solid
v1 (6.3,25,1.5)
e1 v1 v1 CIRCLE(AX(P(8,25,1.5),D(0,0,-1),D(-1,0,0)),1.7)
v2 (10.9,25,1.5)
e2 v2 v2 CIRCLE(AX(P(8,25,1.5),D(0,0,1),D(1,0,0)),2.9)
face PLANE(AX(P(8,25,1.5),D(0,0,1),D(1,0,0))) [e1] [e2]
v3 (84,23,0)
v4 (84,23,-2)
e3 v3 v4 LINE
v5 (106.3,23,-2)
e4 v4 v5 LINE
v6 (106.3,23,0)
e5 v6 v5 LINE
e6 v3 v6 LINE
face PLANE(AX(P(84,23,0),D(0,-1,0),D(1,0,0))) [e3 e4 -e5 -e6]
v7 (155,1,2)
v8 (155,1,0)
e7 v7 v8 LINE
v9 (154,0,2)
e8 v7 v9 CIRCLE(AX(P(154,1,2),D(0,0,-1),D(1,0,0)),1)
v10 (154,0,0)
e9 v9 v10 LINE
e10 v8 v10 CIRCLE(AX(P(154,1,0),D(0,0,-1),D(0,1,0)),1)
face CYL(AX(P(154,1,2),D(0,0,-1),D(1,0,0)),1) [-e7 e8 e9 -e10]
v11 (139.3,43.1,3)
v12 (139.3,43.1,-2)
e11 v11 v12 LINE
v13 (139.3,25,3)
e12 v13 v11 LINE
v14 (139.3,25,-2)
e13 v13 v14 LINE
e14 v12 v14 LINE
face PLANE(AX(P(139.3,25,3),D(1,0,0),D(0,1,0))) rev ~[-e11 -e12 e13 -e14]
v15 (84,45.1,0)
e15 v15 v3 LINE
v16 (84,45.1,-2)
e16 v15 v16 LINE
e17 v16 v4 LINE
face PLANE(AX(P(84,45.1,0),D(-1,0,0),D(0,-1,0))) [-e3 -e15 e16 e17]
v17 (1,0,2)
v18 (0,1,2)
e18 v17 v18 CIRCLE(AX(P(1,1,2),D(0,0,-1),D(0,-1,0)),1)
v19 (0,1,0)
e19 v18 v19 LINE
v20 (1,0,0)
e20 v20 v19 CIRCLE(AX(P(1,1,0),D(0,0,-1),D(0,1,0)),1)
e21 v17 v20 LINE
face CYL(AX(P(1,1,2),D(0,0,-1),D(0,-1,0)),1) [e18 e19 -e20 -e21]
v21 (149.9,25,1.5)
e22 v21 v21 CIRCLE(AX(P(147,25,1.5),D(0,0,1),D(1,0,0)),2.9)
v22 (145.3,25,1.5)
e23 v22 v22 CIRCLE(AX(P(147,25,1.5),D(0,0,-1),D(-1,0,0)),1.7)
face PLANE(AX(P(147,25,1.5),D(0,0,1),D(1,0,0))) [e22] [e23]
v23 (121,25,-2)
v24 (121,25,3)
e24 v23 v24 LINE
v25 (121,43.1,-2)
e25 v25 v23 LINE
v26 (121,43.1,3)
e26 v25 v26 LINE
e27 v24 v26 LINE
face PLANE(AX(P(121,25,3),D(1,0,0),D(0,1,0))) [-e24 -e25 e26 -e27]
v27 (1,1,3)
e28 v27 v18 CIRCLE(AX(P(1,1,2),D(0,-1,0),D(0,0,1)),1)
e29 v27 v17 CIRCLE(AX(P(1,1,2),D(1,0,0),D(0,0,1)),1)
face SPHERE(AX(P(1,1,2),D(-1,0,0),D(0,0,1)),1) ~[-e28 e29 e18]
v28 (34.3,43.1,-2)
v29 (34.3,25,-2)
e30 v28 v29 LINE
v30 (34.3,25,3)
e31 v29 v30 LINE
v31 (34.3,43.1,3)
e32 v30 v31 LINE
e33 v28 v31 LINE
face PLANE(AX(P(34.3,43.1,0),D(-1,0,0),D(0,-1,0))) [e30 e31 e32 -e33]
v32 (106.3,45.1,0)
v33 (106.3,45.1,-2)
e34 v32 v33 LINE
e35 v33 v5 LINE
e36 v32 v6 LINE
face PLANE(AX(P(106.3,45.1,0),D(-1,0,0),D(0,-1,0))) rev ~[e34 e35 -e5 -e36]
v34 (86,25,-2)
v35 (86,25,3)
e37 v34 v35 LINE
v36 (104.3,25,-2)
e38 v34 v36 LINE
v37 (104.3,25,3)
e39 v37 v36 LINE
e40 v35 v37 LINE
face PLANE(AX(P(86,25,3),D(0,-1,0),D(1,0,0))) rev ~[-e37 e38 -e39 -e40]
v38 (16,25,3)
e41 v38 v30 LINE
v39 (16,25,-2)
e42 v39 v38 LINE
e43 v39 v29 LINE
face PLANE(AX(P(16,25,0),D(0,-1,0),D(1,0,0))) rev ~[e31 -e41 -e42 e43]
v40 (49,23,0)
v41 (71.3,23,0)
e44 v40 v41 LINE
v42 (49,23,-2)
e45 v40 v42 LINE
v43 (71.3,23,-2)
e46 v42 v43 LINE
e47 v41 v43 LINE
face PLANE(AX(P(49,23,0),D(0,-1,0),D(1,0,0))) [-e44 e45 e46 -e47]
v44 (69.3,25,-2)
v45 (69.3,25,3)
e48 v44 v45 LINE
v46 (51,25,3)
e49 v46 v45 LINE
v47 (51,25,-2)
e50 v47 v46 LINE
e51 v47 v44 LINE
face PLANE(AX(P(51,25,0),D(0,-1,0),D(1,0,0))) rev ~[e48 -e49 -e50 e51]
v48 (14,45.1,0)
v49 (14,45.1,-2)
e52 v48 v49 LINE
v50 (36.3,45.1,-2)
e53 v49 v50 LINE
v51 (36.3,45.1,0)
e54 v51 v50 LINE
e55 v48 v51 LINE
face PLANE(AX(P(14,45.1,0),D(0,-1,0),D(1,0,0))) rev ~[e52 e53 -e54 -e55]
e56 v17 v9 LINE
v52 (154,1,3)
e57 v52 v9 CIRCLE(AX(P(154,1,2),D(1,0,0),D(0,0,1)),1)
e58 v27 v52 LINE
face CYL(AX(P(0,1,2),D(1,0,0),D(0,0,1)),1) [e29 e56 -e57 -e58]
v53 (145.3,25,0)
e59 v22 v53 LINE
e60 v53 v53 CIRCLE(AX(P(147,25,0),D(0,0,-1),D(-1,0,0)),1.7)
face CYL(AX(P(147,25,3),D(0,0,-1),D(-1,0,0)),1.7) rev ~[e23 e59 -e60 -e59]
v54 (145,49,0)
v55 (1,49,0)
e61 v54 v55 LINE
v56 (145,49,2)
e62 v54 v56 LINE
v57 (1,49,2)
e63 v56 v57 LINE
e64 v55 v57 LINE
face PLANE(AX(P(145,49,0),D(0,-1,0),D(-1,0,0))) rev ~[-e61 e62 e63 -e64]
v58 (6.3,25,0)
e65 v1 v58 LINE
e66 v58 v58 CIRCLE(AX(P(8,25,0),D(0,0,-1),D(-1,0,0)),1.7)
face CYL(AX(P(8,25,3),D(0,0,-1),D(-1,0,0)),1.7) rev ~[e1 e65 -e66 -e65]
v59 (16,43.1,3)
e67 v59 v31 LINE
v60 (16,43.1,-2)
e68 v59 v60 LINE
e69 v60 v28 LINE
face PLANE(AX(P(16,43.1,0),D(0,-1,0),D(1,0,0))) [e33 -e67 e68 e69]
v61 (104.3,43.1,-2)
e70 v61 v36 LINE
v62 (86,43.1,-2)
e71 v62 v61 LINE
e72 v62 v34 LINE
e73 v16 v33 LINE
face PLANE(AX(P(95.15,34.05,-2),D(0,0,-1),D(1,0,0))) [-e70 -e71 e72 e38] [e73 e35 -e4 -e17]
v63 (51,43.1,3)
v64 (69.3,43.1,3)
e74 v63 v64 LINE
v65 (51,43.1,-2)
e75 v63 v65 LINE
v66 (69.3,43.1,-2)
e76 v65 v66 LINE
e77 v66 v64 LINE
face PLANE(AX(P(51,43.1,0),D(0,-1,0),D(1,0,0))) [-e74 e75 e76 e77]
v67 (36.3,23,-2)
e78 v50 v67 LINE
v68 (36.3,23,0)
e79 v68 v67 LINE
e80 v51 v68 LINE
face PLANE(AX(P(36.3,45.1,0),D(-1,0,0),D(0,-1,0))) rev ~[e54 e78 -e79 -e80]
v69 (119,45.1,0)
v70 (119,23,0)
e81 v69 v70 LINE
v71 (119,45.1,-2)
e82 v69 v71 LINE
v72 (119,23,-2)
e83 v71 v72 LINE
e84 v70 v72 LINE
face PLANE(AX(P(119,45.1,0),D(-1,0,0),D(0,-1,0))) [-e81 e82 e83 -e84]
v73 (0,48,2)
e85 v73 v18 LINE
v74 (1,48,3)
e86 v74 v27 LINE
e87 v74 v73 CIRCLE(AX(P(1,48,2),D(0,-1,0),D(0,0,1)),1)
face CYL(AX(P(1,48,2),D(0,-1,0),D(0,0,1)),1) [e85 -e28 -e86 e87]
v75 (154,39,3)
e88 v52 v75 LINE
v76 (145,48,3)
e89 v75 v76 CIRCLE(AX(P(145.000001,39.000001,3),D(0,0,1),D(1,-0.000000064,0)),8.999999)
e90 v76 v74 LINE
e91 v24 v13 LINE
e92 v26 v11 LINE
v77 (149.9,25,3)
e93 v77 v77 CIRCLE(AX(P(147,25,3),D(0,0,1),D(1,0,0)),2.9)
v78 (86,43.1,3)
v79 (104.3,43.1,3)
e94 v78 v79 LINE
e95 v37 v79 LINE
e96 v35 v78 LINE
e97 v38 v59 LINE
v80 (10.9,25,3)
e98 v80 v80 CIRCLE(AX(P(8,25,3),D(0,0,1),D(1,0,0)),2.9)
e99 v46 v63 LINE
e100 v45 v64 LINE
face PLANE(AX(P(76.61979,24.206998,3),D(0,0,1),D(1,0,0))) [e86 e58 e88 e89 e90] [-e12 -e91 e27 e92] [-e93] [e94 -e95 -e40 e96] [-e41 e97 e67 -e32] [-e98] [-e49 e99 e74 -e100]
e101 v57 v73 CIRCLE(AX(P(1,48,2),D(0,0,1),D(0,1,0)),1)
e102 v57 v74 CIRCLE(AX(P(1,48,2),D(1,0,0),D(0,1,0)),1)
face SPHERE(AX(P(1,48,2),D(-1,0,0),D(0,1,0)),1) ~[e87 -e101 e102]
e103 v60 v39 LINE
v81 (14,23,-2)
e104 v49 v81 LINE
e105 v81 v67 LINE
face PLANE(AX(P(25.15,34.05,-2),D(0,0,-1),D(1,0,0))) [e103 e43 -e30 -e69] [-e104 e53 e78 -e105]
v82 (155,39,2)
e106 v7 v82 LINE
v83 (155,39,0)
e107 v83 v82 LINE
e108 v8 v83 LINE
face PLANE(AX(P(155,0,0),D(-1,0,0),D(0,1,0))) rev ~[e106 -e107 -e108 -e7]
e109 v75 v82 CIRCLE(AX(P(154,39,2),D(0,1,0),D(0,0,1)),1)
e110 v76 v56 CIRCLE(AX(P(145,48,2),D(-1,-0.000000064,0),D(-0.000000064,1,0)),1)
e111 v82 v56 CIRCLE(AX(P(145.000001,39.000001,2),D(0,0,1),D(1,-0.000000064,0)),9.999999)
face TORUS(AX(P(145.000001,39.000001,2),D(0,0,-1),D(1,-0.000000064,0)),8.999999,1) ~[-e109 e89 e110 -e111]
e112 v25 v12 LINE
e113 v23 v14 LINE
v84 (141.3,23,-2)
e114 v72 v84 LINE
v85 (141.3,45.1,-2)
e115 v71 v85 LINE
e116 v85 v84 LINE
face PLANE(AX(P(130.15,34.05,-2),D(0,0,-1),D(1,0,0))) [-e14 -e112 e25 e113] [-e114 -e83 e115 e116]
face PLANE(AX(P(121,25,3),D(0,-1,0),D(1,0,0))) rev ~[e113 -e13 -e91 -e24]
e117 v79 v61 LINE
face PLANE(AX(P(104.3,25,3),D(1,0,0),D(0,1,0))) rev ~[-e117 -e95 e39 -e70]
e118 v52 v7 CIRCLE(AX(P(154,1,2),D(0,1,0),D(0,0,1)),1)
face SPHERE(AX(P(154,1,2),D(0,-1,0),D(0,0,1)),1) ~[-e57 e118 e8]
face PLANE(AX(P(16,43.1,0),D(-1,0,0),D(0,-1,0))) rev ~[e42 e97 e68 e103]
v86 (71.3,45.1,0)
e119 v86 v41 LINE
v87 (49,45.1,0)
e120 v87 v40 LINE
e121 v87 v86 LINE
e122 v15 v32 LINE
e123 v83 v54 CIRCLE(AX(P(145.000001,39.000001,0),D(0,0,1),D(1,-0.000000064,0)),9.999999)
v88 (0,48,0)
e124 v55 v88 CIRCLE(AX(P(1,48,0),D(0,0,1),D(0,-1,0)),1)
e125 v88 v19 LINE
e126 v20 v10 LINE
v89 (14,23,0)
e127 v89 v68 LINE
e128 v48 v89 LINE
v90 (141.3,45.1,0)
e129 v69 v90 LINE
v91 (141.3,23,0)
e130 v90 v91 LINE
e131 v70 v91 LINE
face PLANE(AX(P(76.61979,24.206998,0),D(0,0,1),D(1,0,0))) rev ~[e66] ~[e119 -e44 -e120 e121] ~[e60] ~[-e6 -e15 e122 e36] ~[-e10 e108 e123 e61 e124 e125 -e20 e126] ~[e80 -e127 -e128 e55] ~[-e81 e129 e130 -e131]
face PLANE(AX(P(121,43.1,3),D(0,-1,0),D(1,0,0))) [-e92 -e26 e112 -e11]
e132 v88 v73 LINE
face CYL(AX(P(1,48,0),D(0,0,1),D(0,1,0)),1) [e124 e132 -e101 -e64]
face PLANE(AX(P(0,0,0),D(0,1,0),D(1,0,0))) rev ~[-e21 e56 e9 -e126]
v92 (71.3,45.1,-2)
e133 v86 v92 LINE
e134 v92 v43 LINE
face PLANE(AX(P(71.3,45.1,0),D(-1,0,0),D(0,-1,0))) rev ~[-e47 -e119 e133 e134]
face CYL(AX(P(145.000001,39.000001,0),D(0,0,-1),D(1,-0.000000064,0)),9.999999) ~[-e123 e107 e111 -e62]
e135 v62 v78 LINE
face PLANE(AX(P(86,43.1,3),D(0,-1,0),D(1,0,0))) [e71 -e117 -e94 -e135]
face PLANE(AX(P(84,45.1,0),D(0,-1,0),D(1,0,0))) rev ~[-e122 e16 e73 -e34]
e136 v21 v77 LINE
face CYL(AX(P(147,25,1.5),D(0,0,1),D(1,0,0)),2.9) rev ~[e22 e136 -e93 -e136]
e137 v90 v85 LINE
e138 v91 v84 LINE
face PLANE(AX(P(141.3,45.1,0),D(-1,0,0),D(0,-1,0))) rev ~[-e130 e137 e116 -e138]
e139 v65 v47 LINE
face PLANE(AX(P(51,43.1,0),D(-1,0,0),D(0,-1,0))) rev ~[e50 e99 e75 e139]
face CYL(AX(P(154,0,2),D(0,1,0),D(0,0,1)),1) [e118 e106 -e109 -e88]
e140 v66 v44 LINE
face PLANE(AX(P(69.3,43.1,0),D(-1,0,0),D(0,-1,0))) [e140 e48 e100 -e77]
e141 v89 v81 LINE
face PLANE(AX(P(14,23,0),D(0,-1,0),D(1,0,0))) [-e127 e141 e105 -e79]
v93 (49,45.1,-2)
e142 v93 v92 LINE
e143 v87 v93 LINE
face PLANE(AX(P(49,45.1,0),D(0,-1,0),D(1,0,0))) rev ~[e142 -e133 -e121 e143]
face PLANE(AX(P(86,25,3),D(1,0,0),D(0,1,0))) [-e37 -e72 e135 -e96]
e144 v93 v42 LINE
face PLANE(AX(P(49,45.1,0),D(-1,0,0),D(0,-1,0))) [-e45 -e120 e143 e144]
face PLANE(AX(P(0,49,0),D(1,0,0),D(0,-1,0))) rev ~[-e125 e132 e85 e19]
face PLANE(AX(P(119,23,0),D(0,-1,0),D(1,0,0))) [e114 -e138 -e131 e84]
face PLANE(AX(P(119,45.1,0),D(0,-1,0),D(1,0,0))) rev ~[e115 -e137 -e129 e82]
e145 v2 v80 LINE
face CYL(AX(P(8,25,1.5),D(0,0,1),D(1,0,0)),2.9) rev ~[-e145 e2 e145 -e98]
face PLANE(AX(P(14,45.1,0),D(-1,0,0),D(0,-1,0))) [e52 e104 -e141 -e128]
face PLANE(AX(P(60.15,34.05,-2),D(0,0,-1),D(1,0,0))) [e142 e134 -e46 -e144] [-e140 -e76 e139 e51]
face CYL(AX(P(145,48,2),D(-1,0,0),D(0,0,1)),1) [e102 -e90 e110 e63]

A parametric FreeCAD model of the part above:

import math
import FreeCAD as App
import Part
import Sketcher
from FreeCAD import Vector


def edges_at(feature, points):
    """Names of the edges that pass closest to the given points."""
    edges = feature.Shape.Edges
    near = lambda p: min(range(len(edges)), key=lambda i: edges[i].distToShape(Part.Vertex(*p))[0])
    return sorted({f"Edge{near(p) + 1}" for p in points})


def add_polygon(sketch, points):
    """Adds a closed chain of lines whose ends are joined by coincident constraints."""
    first, n = sketch.GeometryCount, len(points)
    for a, b in zip(points, points[1:] + points[:1]):
        sketch.addGeometry(Part.LineSegment(App.Vector(*a, 0), App.Vector(*b, 0)), False)
    for i in range(n):
        sketch.addConstraint(Sketcher.Constraint("Coincident", first + i, 2, first + (i + 1) % n, 1))

doc = App.newDocument("Part")
body = doc.addObject("PartDesign::Body", "Body")

sketch1 = body.newObject("Sketcher::SketchObject", "Sketch")
sketch1.AttachmentSupport = (doc.getObject("XY_Plane"), [""])
sketch1.MapMode = "FlatFace"
sketch1.addGeometry(Part.LineSegment(Vector(145, 49, 0), Vector(0, 49, 0)), False)
sketch1.addGeometry(Part.LineSegment(Vector(0, 49, 0), Vector(0, 0, 0)), False)
sketch1.addGeometry(Part.LineSegment(Vector(0, 0, 0), Vector(155, 0, 0)), False)
sketch1.addGeometry(Part.LineSegment(Vector(155, 0, 0), Vector(155, 39, 0)), False)
sketch1.addGeometry(Part.ArcOfCircle(Part.Circle(Vector(145, 39, 0), Vector(0, 0, 1), 10), math.radians(0), math.radians(90)), False)
sketch1.addConstraint(Sketcher.Constraint("Coincident", 0, 2, 1, 1))
sketch1.addConstraint(Sketcher.Constraint("Coincident", 1, 2, 2, 1))
sketch1.addConstraint(Sketcher.Constraint("Coincident", 2, 2, 3, 1))
sketch1.addConstraint(Sketcher.Constraint("Tangent", 3, 2, 4, 1))
sketch1.addConstraint(Sketcher.Constraint("Tangent", 4, 2, 0, 1))
sketch1.addConstraint(Sketcher.Constraint("Horizontal", 0))
sketch1.addConstraint(Sketcher.Constraint("Vertical", 1))
sketch1.addConstraint(Sketcher.Constraint("Horizontal", 2))
sketch1.addConstraint(Sketcher.Constraint("Vertical", 3))
sketch1.addConstraint(Sketcher.Constraint("Coincident", 1, 2, -1, 1))
sketch1.addConstraint(Sketcher.Constraint("Radius", 4, 9.999999))
sketch1.addConstraint(Sketcher.Constraint("DistanceX", 0, 2, 0, 1, 145.0))
sketch1.addConstraint(Sketcher.Constraint("DistanceY", 1, 2, 1, 1, 49.0))
pad1 = body.newObject("PartDesign::Pad", "Pad")
pad1.Profile = sketch1
pad1.Length = 3

sketch2 = body.newObject("Sketcher::SketchObject", "Sketch001")
sketch2.AttachmentSupport = (doc.getObject("XY_Plane"), [""])
sketch2.MapMode = "FlatFace"
sketch2.AttachmentOffset = App.Placement(Vector(0, 0, 3), App.Rotation())
add_polygon(sketch2, [(16, 43), (16, 25), (34, 25), (34, 43)])
sketch2.addConstraint(Sketcher.Constraint("Vertical", 0))
sketch2.addConstraint(Sketcher.Constraint("Horizontal", 1))
sketch2.addConstraint(Sketcher.Constraint("Vertical", 2))
sketch2.addConstraint(Sketcher.Constraint("Horizontal", 3))
sketch2.addConstraint(Sketcher.Constraint("DistanceX", 1, 1, 1, 2, 18.3))
sketch2.addConstraint(Sketcher.Constraint("DistanceY", 0, 2, 0, 1, 18.1))
sketch2.addConstraint(Sketcher.Constraint("DistanceX", -1, 1, 0, 2, 16.0))
sketch2.addConstraint(Sketcher.Constraint("DistanceY", -1, 1, 0, 2, 25.0))
pocket1 = body.newObject("PartDesign::Pocket", "Pocket")
pocket1.Profile = sketch2
pocket1.Type = "ThroughAll"
doc.recompute()

linearpattern = body.newObject("PartDesign::LinearPattern", "LinearPattern")
linearpattern.Originals = [pocket1]
linearpattern.Direction = (doc.getObject("X_Axis"), [""])
linearpattern.Mode = "offset"
linearpattern.Offset = 35
linearpattern.Occurrences = 4
body.Tip = linearpattern

sketch3 = body.newObject("Sketcher::SketchObject", "Sketch002")
sketch3.AttachmentSupport = (doc.getObject("XY_Plane"), [""])
sketch3.MapMode = "FlatFace"
sketch3.AttachmentOffset = App.Placement(Vector(0, 0, 3), App.Rotation())
sketch3.addGeometry(Part.Circle(Vector(8, 25, 0), Vector(0, 0, 1), 1.7), False)
sketch3.addGeometry(Part.Circle(Vector(147, 25, 0), Vector(0, 0, 1), 1.7), False)
sketch3.addConstraint(Sketcher.Constraint("Equal", 0, 1))
sketch3.addConstraint(Sketcher.Constraint("Horizontal", 0, 3, 1, 3))
sketch3.addConstraint(Sketcher.Constraint("Diameter", 0, 3.4))
sketch3.addConstraint(Sketcher.Constraint("DistanceX", -1, 1, 0, 3, 8.0))
sketch3.addConstraint(Sketcher.Constraint("DistanceY", -1, 1, 0, 3, 25.0))
sketch3.addConstraint(Sketcher.Constraint("DistanceX", -1, 1, 1, 3, 147.0))
doc.recompute()
hole = body.newObject("PartDesign::Hole", "Hole")
hole.Profile = sketch3
hole.ThreadType = "None"
hole.Diameter = 3.4
hole.DepthType = "ThroughAll"
hole.HoleCutType = "Counterbore"
hole.HoleCutDiameter = 5.8
hole.HoleCutDepth = 1.5

sketch4 = body.newObject("Sketcher::SketchObject", "Sketch003")
sketch4.AttachmentSupport = (doc.getObject("XY_Plane"), [""])
sketch4.MapMode = "FlatFace"
add_polygon(sketch4, [(14, 23), (14, 45), (36, 45), (36, 23)])
add_polygon(sketch4, [(34, 43), (16, 43), (16, 25), (34, 25)])
sketch4.addConstraint(Sketcher.Constraint("Vertical", 0))
sketch4.addConstraint(Sketcher.Constraint("Horizontal", 1))
sketch4.addConstraint(Sketcher.Constraint("Vertical", 2))
sketch4.addConstraint(Sketcher.Constraint("Horizontal", 3))
sketch4.addConstraint(Sketcher.Constraint("Horizontal", 4))
sketch4.addConstraint(Sketcher.Constraint("Vertical", 5))
sketch4.addConstraint(Sketcher.Constraint("Horizontal", 6))
sketch4.addConstraint(Sketcher.Constraint("Vertical", 7))
sketch4.addConstraint(Sketcher.Constraint("DistanceX", 1, 1, 1, 2, 22.3))
sketch4.addConstraint(Sketcher.Constraint("DistanceX", 4, 2, 4, 1, 18.3))
sketch4.addConstraint(Sketcher.Constraint("DistanceY", 0, 1, 0, 2, 22.1))
sketch4.addConstraint(Sketcher.Constraint("DistanceY", 5, 2, 5, 1, 18.1))
sketch4.addConstraint(Sketcher.Constraint("DistanceX", -1, 1, 0, 2, 14.0))
sketch4.addConstraint(Sketcher.Constraint("DistanceY", -1, 1, 2, 2, 23.0))
sketch4.addConstraint(Sketcher.Constraint("DistanceX", -1, 1, 4, 2, 16.0))
sketch4.addConstraint(Sketcher.Constraint("DistanceY", -1, 1, 5, 2, 25.0))
pad2 = body.newObject("PartDesign::Pad", "Pad001")
pad2.Profile = sketch4
pad2.Length = 2
pad2.Reversed = True
doc.recompute()

linearpattern2 = body.newObject("PartDesign::LinearPattern", "LinearPattern001")
linearpattern2.Originals = [pad2]
linearpattern2.Direction = (doc.getObject("X_Axis"), [""])
linearpattern2.Mode = "offset"
linearpattern2.Offset = 35
linearpattern2.Occurrences = 4
body.Tip = linearpattern2
doc.recompute()

fillet = body.newObject("PartDesign::Fillet", "Fillet")
fillet.Base = (linearpattern2, edges_at(linearpattern2, [(72.5, 49, 3)]))
fillet.Radius = 1
doc.recompute()

fillet2 = body.newObject("PartDesign::Fillet", "Fillet001")
fillet2.Base = (fillet, edges_at(fillet, [(77, 0, 3)]))
fillet2.Radius = 1
doc.recompute()

fillet3 = body.newObject("PartDesign::Fillet", "Fillet002")
fillet3.Base = (fillet2, edges_at(fillet2, [(0, 24.5, 3)]))
fillet3.Radius = 1

doc.recompute()
